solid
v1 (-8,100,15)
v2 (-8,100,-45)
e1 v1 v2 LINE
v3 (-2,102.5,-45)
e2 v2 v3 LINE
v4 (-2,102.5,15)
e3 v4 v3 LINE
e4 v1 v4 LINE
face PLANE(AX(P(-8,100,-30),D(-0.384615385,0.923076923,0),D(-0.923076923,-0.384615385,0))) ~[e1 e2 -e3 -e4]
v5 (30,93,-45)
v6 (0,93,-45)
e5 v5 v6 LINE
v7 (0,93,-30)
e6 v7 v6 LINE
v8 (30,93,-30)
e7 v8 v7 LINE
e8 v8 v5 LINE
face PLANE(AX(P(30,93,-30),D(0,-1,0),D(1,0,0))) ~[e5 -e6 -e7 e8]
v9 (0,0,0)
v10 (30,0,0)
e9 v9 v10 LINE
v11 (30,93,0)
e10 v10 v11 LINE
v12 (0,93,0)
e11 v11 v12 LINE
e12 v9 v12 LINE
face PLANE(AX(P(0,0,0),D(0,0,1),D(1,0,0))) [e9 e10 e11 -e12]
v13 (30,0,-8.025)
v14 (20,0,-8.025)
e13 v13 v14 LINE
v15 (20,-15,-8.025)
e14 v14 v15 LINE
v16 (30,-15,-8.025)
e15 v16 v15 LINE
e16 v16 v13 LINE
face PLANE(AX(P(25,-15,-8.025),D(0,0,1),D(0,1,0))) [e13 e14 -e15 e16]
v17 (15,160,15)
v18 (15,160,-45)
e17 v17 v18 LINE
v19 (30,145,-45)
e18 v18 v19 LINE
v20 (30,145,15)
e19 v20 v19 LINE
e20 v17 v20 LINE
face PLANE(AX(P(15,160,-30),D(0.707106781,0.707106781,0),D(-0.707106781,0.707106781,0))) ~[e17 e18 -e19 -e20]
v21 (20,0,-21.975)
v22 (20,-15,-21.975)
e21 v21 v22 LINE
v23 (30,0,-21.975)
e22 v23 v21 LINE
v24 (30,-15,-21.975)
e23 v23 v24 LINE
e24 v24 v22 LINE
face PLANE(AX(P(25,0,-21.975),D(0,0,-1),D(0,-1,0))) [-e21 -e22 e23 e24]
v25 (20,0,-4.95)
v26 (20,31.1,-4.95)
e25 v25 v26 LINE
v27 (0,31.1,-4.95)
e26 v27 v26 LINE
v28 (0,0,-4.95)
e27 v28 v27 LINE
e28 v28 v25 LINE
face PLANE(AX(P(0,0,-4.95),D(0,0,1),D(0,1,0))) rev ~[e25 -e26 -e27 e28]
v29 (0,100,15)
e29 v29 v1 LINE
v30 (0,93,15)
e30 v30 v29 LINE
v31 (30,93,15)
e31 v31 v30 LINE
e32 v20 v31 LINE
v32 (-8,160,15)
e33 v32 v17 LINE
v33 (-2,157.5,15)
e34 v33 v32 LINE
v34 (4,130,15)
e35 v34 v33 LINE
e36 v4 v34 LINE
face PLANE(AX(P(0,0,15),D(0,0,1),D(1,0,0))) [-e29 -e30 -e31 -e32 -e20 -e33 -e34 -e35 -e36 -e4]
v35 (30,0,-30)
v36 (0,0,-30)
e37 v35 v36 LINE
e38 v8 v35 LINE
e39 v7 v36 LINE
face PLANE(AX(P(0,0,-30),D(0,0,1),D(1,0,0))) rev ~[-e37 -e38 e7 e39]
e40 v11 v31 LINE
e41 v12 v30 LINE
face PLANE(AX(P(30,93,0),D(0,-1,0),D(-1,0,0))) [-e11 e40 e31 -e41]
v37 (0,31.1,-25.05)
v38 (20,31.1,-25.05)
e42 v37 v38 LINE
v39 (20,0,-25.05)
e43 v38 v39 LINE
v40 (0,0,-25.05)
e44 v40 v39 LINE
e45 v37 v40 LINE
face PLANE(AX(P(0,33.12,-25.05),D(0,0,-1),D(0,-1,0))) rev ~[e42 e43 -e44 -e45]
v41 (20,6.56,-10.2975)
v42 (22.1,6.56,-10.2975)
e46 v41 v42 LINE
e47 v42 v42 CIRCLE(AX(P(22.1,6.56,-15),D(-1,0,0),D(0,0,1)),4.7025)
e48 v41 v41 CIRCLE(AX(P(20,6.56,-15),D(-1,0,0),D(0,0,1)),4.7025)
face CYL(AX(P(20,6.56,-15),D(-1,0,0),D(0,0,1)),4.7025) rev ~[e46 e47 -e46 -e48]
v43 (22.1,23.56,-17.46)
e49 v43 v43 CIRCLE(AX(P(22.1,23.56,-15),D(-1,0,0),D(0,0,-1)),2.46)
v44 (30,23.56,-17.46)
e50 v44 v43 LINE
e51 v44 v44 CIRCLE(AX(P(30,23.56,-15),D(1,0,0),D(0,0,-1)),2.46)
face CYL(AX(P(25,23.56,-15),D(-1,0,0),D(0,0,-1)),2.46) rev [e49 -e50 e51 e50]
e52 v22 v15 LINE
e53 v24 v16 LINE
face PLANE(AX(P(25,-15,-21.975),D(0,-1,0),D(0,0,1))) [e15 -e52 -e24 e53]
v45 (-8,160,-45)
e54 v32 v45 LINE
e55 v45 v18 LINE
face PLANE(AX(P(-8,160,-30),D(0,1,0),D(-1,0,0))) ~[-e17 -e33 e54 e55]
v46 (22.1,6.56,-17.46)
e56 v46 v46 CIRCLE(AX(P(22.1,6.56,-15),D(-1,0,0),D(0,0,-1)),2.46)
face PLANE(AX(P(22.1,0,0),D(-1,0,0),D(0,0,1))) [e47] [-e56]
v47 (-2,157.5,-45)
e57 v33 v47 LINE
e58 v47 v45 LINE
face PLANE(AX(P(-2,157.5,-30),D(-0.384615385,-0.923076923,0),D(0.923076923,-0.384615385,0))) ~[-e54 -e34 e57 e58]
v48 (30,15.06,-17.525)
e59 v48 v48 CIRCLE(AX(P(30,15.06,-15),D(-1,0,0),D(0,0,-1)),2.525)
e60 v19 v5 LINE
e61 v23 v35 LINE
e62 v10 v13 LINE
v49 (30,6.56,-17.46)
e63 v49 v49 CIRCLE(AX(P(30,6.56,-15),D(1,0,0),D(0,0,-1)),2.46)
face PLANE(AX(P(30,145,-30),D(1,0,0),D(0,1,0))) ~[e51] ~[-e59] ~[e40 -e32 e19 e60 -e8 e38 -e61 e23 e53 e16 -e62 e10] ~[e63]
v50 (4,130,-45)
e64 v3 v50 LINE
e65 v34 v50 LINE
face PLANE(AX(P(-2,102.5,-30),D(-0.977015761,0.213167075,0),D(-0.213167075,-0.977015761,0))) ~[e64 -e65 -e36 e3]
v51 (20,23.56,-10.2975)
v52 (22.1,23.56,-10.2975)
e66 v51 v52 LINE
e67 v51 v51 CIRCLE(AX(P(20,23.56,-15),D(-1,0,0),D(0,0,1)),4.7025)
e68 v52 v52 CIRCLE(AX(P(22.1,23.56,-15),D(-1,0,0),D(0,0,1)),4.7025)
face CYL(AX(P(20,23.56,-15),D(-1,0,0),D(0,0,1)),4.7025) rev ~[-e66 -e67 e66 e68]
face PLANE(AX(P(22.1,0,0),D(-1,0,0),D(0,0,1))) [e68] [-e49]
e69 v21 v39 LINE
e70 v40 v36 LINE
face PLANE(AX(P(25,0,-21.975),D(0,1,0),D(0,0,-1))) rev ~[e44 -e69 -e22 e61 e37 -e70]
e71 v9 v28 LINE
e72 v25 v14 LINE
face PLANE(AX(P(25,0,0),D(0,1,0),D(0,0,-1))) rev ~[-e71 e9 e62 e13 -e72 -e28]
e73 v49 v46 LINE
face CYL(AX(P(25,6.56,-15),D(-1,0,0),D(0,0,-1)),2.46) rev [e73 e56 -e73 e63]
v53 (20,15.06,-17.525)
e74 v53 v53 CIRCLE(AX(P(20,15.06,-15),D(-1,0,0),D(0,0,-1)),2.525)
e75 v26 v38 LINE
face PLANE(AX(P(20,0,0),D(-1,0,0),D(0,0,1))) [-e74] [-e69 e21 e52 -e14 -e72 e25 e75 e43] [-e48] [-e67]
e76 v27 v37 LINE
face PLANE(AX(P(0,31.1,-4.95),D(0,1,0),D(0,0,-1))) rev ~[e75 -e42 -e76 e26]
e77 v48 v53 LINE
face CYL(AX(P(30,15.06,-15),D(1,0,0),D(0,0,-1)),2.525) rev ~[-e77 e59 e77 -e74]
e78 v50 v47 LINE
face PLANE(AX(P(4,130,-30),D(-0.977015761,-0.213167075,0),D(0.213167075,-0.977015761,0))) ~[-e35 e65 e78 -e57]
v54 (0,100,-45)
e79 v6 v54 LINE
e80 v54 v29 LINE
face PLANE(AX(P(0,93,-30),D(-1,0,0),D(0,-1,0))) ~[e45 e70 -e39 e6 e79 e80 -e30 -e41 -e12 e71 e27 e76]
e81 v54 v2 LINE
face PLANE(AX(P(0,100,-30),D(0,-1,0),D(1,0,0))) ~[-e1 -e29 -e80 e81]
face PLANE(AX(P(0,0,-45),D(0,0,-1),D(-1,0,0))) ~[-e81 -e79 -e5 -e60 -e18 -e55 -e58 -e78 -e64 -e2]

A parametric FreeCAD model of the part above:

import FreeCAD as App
import Part
import Sketcher
Q = App.Units.Quantity

doc = App.newDocument("Part")
body = doc.addObject("PartDesign::Body", "Body")

sketch1 = body.newObject("Sketcher::SketchObject", "Sketch")
sketch1.AttachmentSupport = (doc.getObject("XY_Plane"), [""])
sketch1.MapMode = "FlatFace"
sketch1.addGeometry([
    Part.LineSegment(App.Vector(0, 40, 0), App.Vector(0, 0, 0)),
    Part.LineSegment(App.Vector(0, 0, 0), App.Vector(25, 0, 0)),
    Part.LineSegment(App.Vector(25, 0, 0), App.Vector(25, 40, 0)),
    Part.LineSegment(App.Vector(25, 40, 0), App.Vector(0, 40, 0)),
], False)
sketch1.addConstraint([
    Sketcher.Constraint("Coincident", 0, 2, 1, 1),
    Sketcher.Constraint("Coincident", 1, 2, 2, 1),
    Sketcher.Constraint("Coincident", 2, 2, 3, 1),
    Sketcher.Constraint("Coincident", 3, 2, 0, 1),
    Sketcher.Constraint("Vertical", 0),
    Sketcher.Constraint("Horizontal", 1),
    Sketcher.Constraint("Vertical", 2),
    Sketcher.Constraint("Horizontal", 3),
    Sketcher.Constraint("Coincident", 0, 2, -1, 1),
    Sketcher.Constraint("DistanceX", 1, 1, 1, 2, Q("25 mm")),
    Sketcher.Constraint("DistanceY", 0, 2, 0, 1, Q("40 mm")),
])
pad1 = body.newObject("PartDesign::Pad", "Pad")
pad1.Profile = sketch1
pad1.Length = 30
pad1.Reversed = True

sketch2 = body.newObject("Sketcher::SketchObject", "Sketch001")
sketch2.AttachmentSupport = (doc.getObject("YZ_Plane"), [""])
sketch2.MapMode = "FlatFace"
sketch2.AttachmentOffset = App.Placement(App.Vector(0, 0, 25), App.Rotation())
sketch2.addGeometry(Part.Circle(App.Vector(6.6, -15, 0), App.Vector(0, 0, 1), 2.5), False)
sketch2.addConstraint([
    Sketcher.Constraint("Diameter", 0, Q("4.92 mm")),
    Sketcher.Constraint("DistanceY", 0, 3, -1, 1, Q("15 mm")),
    Sketcher.Constraint("DistanceX", -1, 1, 0, 3, Q("6.56 mm")),
])
pocket1 = body.newObject("PartDesign::Pocket", "Pocket")
pocket1.Profile = sketch2
pocket1.Length = 30

sketch3 = body.newObject("Sketcher::SketchObject", "Sketch002")
sketch3.AttachmentSupport = (doc.getObject("YZ_Plane"), [""])
sketch3.MapMode = "FlatFace"
sketch3.addGeometry([
    Part.LineSegment(App.Vector(0, -25, 0), App.Vector(0, -5, 0)),
    Part.LineSegment(App.Vector(0, -5, 0), App.Vector(33, -5, 0)),
    Part.LineSegment(App.Vector(33, -5, 0), App.Vector(33, -25, 0)),
    Part.LineSegment(App.Vector(33, -25, 0), App.Vector(0, -25, 0)),
], False)
sketch3.addConstraint([
    Sketcher.Constraint("Coincident", 0, 2, 1, 1),
    Sketcher.Constraint("Coincident", 1, 2, 2, 1),
    Sketcher.Constraint("Coincident", 2, 2, 3, 1),
    Sketcher.Constraint("Coincident", 3, 2, 0, 1),
    Sketcher.Constraint("Vertical", 0),
    Sketcher.Constraint("Horizontal", 1),
    Sketcher.Constraint("Vertical", 2),
    Sketcher.Constraint("Horizontal", 3),
    Sketcher.Constraint("PointOnObject", 0, 2, -2),
    Sketcher.Constraint("DistanceY", 0, 1, 0, 2, Q("20.1 mm")),
    Sketcher.Constraint("DistanceX", 1, 1, 1, 2, Q("33.12 mm")),
    Sketcher.Constraint("DistanceY", 0, 2, -1, 1, Q("4.95 mm")),
])
pocket2 = body.newObject("PartDesign::Pocket", "Pocket001")
pocket2.Profile = sketch3
pocket2.Length = 20
pocket2.Reversed = True

sketch4 = body.newObject("Sketcher::SketchObject", "Sketch003")
sketch4.AttachmentSupport = (doc.getObject("XZ_Plane"), [""])
sketch4.MapMode = "FlatFace"
sketch4.addGeometry([
    Part.LineSegment(App.Vector(25, -8, 0), App.Vector(20, -8, 0)),
    Part.LineSegment(App.Vector(20, -8, 0), App.Vector(20, -22, 0)),
    Part.LineSegment(App.Vector(20, -22, 0), App.Vector(25, -22, 0)),
    Part.LineSegment(App.Vector(25, -22, 0), App.Vector(25, -8, 0)),
], False)
sketch4.addConstraint([
    Sketcher.Constraint("Coincident", 0, 2, 1, 1),
    Sketcher.Constraint("Coincident", 1, 2, 2, 1),
    Sketcher.Constraint("Coincident", 2, 2, 3, 1),
    Sketcher.Constraint("Coincident", 3, 2, 0, 1),
    Sketcher.Constraint("Horizontal", 0),
    Sketcher.Constraint("Vertical", 1),
    Sketcher.Constraint("Horizontal", 2),
    Sketcher.Constraint("Vertical", 3),
    Sketcher.Constraint("DistanceY", 1, 2, 1, 1, Q("13.95 mm")),
    Sketcher.Constraint("DistanceX", 0, 2, 0, 1, Q("5 mm")),
    Sketcher.Constraint("DistanceX", -1, 1, 0, 2, Q("20 mm")),
    Sketcher.Constraint("DistanceY", 0, 2, -1, 1, Q("8.025 mm")),
])
pad2 = body.newObject("PartDesign::Pad", "Pad001")
pad2.Profile = sketch4
pad2.Length = 15

sketch5 = body.newObject("Sketcher::SketchObject", "Sketch004")
sketch5.AttachmentSupport = (doc.getObject("YZ_Plane"), [""])
sketch5.MapMode = "FlatFace"
sketch5.AttachmentOffset = App.Placement(App.Vector(0, 0, 20), App.Rotation())
sketch5.addGeometry([
    Part.Circle(App.Vector(6.6, -15, 0), App.Vector(0, 0, 1), 4.7),
    Part.Circle(App.Vector(6.6, -15, 0), App.Vector(0, 0, 1), 2.5),
], False)
sketch5.addConstraint([
    Sketcher.Constraint("Coincident", 1, 3, 0, 3),
    Sketcher.Constraint("Diameter", 0, Q("9.405 mm")),
    Sketcher.Constraint("Diameter", 1, Q("4.92 mm")),
    Sketcher.Constraint("DistanceY", 0, 3, -1, 1, Q("15 mm")),
    Sketcher.Constraint("DistanceX", -1, 1, 0, 3, Q("6.56 mm")),
])
pocket3 = body.newObject("PartDesign::Pocket", "Pocket002")
pocket3.Profile = sketch5
pocket3.Length = 2.1
pocket3.Reversed = True

sketch6 = body.newObject("Sketcher::SketchObject", "Sketch005")
sketch6.AttachmentSupport = (doc.getObject("YZ_Plane"), [""])
sketch6.MapMode = "FlatFace"
sketch6.AttachmentOffset = App.Placement(App.Vector(0, 0, 25), App.Rotation())
sketch6.addGeometry(Part.Circle(App.Vector(23.6, -15, 0), App.Vector(0, 0, 1), 2.5), False)
sketch6.addConstraint([
    Sketcher.Constraint("Diameter", 0, Q("4.92 mm")),
    Sketcher.Constraint("DistanceY", 0, 3, -1, 1, Q("15 mm")),
    Sketcher.Constraint("DistanceX", -1, 1, 0, 3, Q("23.56 mm")),
])
pocket4 = body.newObject("PartDesign::Pocket", "Pocket003")
pocket4.Profile = sketch6
pocket4.Length = 10

sketch7 = body.newObject("Sketcher::SketchObject", "Sketch006")
sketch7.AttachmentSupport = (doc.getObject("YZ_Plane"), [""])
sketch7.MapMode = "FlatFace"
sketch7.AttachmentOffset = App.Placement(App.Vector(0, 0, 20), App.Rotation())
sketch7.addGeometry([
    Part.Circle(App.Vector(23.6, -15, 0), App.Vector(0, 0, 1), 4.7),
    Part.Circle(App.Vector(23.6, -15, 0), App.Vector(0, 0, 1), 2.5),
], False)
sketch7.addConstraint([
    Sketcher.Constraint("Coincident", 1, 3, 0, 3),
    Sketcher.Constraint("Diameter", 0, Q("9.405 mm")),
    Sketcher.Constraint("Diameter", 1, Q("4.92 mm")),
    Sketcher.Constraint("DistanceY", 0, 3, -1, 1, Q("15 mm")),
    Sketcher.Constraint("DistanceX", -1, 1, 0, 3, Q("23.56 mm")),
])
pocket5 = body.newObject("PartDesign::Pocket", "Pocket004")
pocket5.Profile = sketch7
pocket5.Length = 2.1
pocket5.Reversed = True

sketch8 = body.newObject("Sketcher::SketchObject", "Sketch007")
sketch8.AttachmentSupport = (doc.getObject("YZ_Plane"), [""])
sketch8.MapMode = "FlatFace"
sketch8.AttachmentOffset = App.Placement(App.Vector(0, 0, 25), App.Rotation())
sketch8.addGeometry([
    Part.LineSegment(App.Vector(0, -30, 0), App.Vector(40, -30, 0)),
    Part.LineSegment(App.Vector(40, -30, 0), App.Vector(40, 0, 0)),
    Part.LineSegment(App.Vector(40, 0, 0), App.Vector(0, 0, 0)),
    Part.LineSegment(App.Vector(0, 0, 0), App.Vector(0, -8, 0)),
    Part.LineSegment(App.Vector(0, -8, 0), App.Vector(-15, -8, 0)),
    Part.LineSegment(App.Vector(-15, -8, 0), App.Vector(-15, -22, 0)),
    Part.LineSegment(App.Vector(-15, -22, 0), App.Vector(0, -22, 0)),
    Part.LineSegment(App.Vector(0, -22, 0), App.Vector(0, -30, 0)),
    Part.Circle(App.Vector(6.6, -15, 0), App.Vector(0, 0, 1), 2.5),
    Part.Circle(App.Vector(23.6, -15, 0), App.Vector(0, 0, 1), 2.5),
], False)
sketch8.addConstraint([
    Sketcher.Constraint("Coincident", 0, 2, 1, 1),
    Sketcher.Constraint("Coincident", 1, 2, 2, 1),
    Sketcher.Constraint("Coincident", 2, 2, 3, 1),
    Sketcher.Constraint("Coincident", 3, 2, 4, 1),
    Sketcher.Constraint("Coincident", 4, 2, 5, 1),
    Sketcher.Constraint("Coincident", 5, 2, 6, 1),
    Sketcher.Constraint("Coincident", 6, 2, 7, 1),
    Sketcher.Constraint("Coincident", 7, 2, 0, 1),
    Sketcher.Constraint("Horizontal", 0),
    Sketcher.Constraint("Vertical", 1),
    Sketcher.Constraint("Horizontal", 2),
    Sketcher.Constraint("Vertical", 3),
    Sketcher.Constraint("Horizontal", 4),
    Sketcher.Constraint("Vertical", 5),
    Sketcher.Constraint("Horizontal", 6),
    Sketcher.Constraint("Vertical", 7),
    Sketcher.Constraint("Coincident", 2, 2, -1, 1),
    Sketcher.Constraint("Equal", 8, 9),
    Sketcher.Constraint("PointOnObject", 6, 2, -2),
    Sketcher.Constraint("Horizontal", 8, 3, 9, 3),
    Sketcher.Constraint("Equal", 3, 7),
    Sketcher.Constraint("Diameter", 8, Q("4.92 mm")),
    Sketcher.Constraint("DistanceX", 0, 1, 0, 2, Q("40 mm")),
    Sketcher.Constraint("DistanceX", 4, 2, 4, 1, Q("15 mm")),
    Sketcher.Constraint("DistanceY", 1, 1, 1, 2, Q("30 mm")),
    Sketcher.Constraint("DistanceY", 8, 3, -1, 1, Q("15 mm")),
    Sketcher.Constraint("DistanceX", 8, 3, 9, 3, Q("17 mm")),
    Sketcher.Constraint("DistanceY", 5, 2, 5, 1, Q("13.95 mm")),
    Sketcher.Constraint("DistanceX", -1, 1, 8, 3, Q("6.56 mm")),
])
pad3 = body.newObject("PartDesign::Pad", "Pad002")
pad3.Profile = sketch8
pad3.Length = 5

sketch9 = body.newObject("Sketcher::SketchObject", "Sketch008")
sketch9.AttachmentSupport = (doc.getObject("XZ_Plane"), [""])
sketch9.MapMode = "FlatFace"
sketch9.AttachmentOffset = App.Placement(App.Vector(0, 0, -40), App.Rotation())
sketch9.addGeometry([
    Part.LineSegment(App.Vector(30, -30, 0), App.Vector(0, -30, 0)),
    Part.LineSegment(App.Vector(0, -30, 0), App.Vector(0, 0, 0)),
    Part.LineSegment(App.Vector(0, 0, 0), App.Vector(30, 0, 0)),
    Part.LineSegment(App.Vector(30, 0, 0), App.Vector(30, -30, 0)),
], False)
sketch9.addConstraint([
    Sketcher.Constraint("Coincident", 0, 2, 1, 1),
    Sketcher.Constraint("Coincident", 1, 2, 2, 1),
    Sketcher.Constraint("Coincident", 2, 2, 3, 1),
    Sketcher.Constraint("Coincident", 3, 2, 0, 1),
    Sketcher.Constraint("Horizontal", 0),
    Sketcher.Constraint("Vertical", 1),
    Sketcher.Constraint("Horizontal", 2),
    Sketcher.Constraint("Vertical", 3),
    Sketcher.Constraint("Coincident", 1, 2, -1, 1),
    Sketcher.Constraint("Equal", 2, 1),
    Sketcher.Constraint("DistanceX", 0, 2, 0, 1, Q("30 mm")),
])
pad4 = body.newObject("PartDesign::Pad", "Pad003")
pad4.Profile = sketch9
pad4.Length = 30
pad4.Reversed = True

sketch10 = body.newObject("Sketcher::SketchObject", "Sketch009")
sketch10.AttachmentSupport = (doc.getObject("YZ_Plane"), [""])
sketch10.MapMode = "FlatFace"
sketch10.AttachmentOffset = App.Placement(App.Vector(0, 0, 30), App.Rotation())
sketch10.addGeometry(Part.Circle(App.Vector(15.1, -15, 0), App.Vector(0, 0, 1), 2.5), False)
sketch10.addConstraint([
    Sketcher.Constraint("Diameter", 0, Q("5.05 mm")),
    Sketcher.Constraint("DistanceY", 0, 3, -1, 1, Q("15 mm")),
    Sketcher.Constraint("DistanceX", -1, 1, 0, 3, Q("15.06 mm")),
])
pocket6 = body.newObject("PartDesign::Pocket", "Pocket005")
pocket6.Profile = sketch10
pocket6.Length = 30

sketch11 = body.newObject("Sketcher::SketchObject", "Sketch010")
sketch11.AttachmentSupport = (doc.getObject("XY_Plane"), [""])
sketch11.MapMode = "FlatFace"
sketch11.addGeometry([
    Part.LineSegment(App.Vector(0, 70, 0), App.Vector(30, 70, 0)),
    Part.LineSegment(App.Vector(30, 70, 0), App.Vector(30, 145, 0)),
    Part.LineSegment(App.Vector(30, 145, 0), App.Vector(15, 160, 0)),
    Part.LineSegment(App.Vector(15, 160, 0), App.Vector(-8, 160, 0)),
    Part.LineSegment(App.Vector(-8, 160, 0), App.Vector(-2, 158, 0)),
    Part.LineSegment(App.Vector(-2, 158, 0), App.Vector(4, 130, 0)),
    Part.LineSegment(App.Vector(4, 130, 0), App.Vector(-2, 102, 0)),
    Part.LineSegment(App.Vector(-2, 102, 0), App.Vector(-8, 100, 0)),
    Part.LineSegment(App.Vector(-8, 100, 0), App.Vector(0, 100, 0)),
    Part.LineSegment(App.Vector(0, 100, 0), App.Vector(0, 70, 0)),
], False)
sketch11.addConstraint([
    Sketcher.Constraint("Coincident", 0, 2, 1, 1),
    Sketcher.Constraint("Coincident", 1, 2, 2, 1),
    Sketcher.Constraint("Coincident", 2, 2, 3, 1),
    Sketcher.Constraint("Coincident", 3, 2, 4, 1),
    Sketcher.Constraint("Coincident", 4, 2, 5, 1),
    Sketcher.Constraint("Coincident", 5, 2, 6, 1),
    Sketcher.Constraint("Coincident", 6, 2, 7, 1),
    Sketcher.Constraint("Coincident", 7, 2, 8, 1),
    Sketcher.Constraint("Coincident", 8, 2, 9, 1),
    Sketcher.Constraint("Coincident", 9, 2, 0, 1),
    Sketcher.Constraint("Horizontal", 0),
    Sketcher.Constraint("Vertical", 1),
    Sketcher.Constraint("Horizontal", 3),
    Sketcher.Constraint("Horizontal", 8),
    Sketcher.Constraint("Vertical", 9),
    Sketcher.Constraint("PointOnObject", 8, 2, -2),
    Sketcher.Constraint("Vertical", 4, 2, 6, 2),
    Sketcher.Constraint("Vertical", 3, 2, 7, 2),
    Sketcher.Constraint("Equal", 0, 9),
    Sketcher.Constraint("Equal", 5, 6),
    Sketcher.Constraint("Equal", 4, 7),
    Sketcher.Constraint("DistanceX", 0, 1, 0, 2, Q("30 mm")),
    Sketcher.Constraint("DistanceY", 5, 2, 2, 2, Q("30 mm")),
    Sketcher.Constraint("DistanceX", 3, 2, 3, 1, Q("23 mm")),
    Sketcher.Constraint("DistanceX", 8, 1, 8, 2, Q("8 mm")),
    Sketcher.Constraint("DistanceY", 1, 1, 1, 2, Q("75 mm")),
    Sketcher.Constraint("DistanceY", -1, 1, 0, 2, Q("70 mm")),
    Sketcher.Constraint("DistanceX", 4, 2, -1, 1, Q("2 mm")),
    Sketcher.Constraint("DistanceX", -1, 1, 5, 2, Q("4 mm")),
    Sketcher.Constraint("DistanceY", 6, 2, 4, 2, Q("55 mm")),
])
pad5 = body.newObject("PartDesign::Pad", "Pad004")
pad5.Profile = sketch11
pad5.Length = 30
pad5.Reversed = True

sketch12 = body.newObject("Sketcher::SketchObject", "Sketch011")
sketch12.AttachmentSupport = (doc.getObject("YZ_Plane"), [""])
sketch12.MapMode = "FlatFace"
sketch12.addGeometry([
    Part.LineSegment(App.Vector(33.1, -5, 0), App.Vector(33.1, -25.1, 0)),
    Part.LineSegment(App.Vector(33.1, -25.1, 0), App.Vector(31.1, -25.1, 0)),
    Part.LineSegment(App.Vector(31.1, -25.1, 0), App.Vector(31.1, -5, 0)),
    Part.LineSegment(App.Vector(31.1, -5, 0), App.Vector(33.1, -5, 0)),
], False)
sketch12.addConstraint([
    Sketcher.Constraint("Coincident", 0, 2, 1, 1),
    Sketcher.Constraint("Coincident", 1, 2, 2, 1),
    Sketcher.Constraint("Coincident", 2, 2, 3, 1),
    Sketcher.Constraint("Coincident", 3, 2, 0, 1),
    Sketcher.Constraint("Vertical", 0),
    Sketcher.Constraint("Horizontal", 1),
    Sketcher.Constraint("Vertical", 2),
    Sketcher.Constraint("Horizontal", 3),
    Sketcher.Constraint("DistanceX", 1, 2, 1, 1, Q("2.02 mm")),
    Sketcher.Constraint("DistanceY", 0, 2, 0, 1, Q("20.1 mm")),
    Sketcher.Constraint("DistanceX", -1, 1, 1, 2, Q("31.1 mm")),
    Sketcher.Constraint("DistanceY", 0, 2, -1, 1, Q("25.05 mm")),
])
pad6 = body.newObject("PartDesign::Pad", "Pad005")
pad6.Profile = sketch12
pad6.Length = 20

sketch13 = body.newObject("Sketcher::SketchObject", "Sketch012")
sketch13.AttachmentSupport = (doc.getObject("XY_Plane"), [""])
sketch13.MapMode = "FlatFace"
sketch13.addGeometry([
    Part.LineSegment(App.Vector(-8, 100, 0), App.Vector(0, 100, 0)),
    Part.LineSegment(App.Vector(0, 100, 0), App.Vector(0, 93, 0)),
    Part.LineSegment(App.Vector(0, 93, 0), App.Vector(30, 93, 0)),
    Part.LineSegment(App.Vector(30, 93, 0), App.Vector(30, 145, 0)),
    Part.LineSegment(App.Vector(30, 145, 0), App.Vector(15, 160, 0)),
    Part.LineSegment(App.Vector(15, 160, 0), App.Vector(-8, 160, 0)),
    Part.LineSegment(App.Vector(-8, 160, 0), App.Vector(-2, 158, 0)),
    Part.LineSegment(App.Vector(-2, 158, 0), App.Vector(4, 130, 0)),
    Part.LineSegment(App.Vector(4, 130, 0), App.Vector(-2, 102, 0)),
    Part.LineSegment(App.Vector(-2, 102, 0), App.Vector(-8, 100, 0)),
], False)
sketch13.addConstraint([
    Sketcher.Constraint("Coincident", 0, 2, 1, 1),
    Sketcher.Constraint("Coincident", 1, 2, 2, 1),
    Sketcher.Constraint("Coincident", 2, 2, 3, 1),
    Sketcher.Constraint("Coincident", 3, 2, 4, 1),
    Sketcher.Constraint("Coincident", 4, 2, 5, 1),
    Sketcher.Constraint("Coincident", 5, 2, 6, 1),
    Sketcher.Constraint("Coincident", 6, 2, 7, 1),
    Sketcher.Constraint("Coincident", 7, 2, 8, 1),
    Sketcher.Constraint("Coincident", 8, 2, 9, 1),
    Sketcher.Constraint("Coincident", 9, 2, 0, 1),
    Sketcher.Constraint("Horizontal", 0),
    Sketcher.Constraint("Vertical", 1),
    Sketcher.Constraint("Horizontal", 2),
    Sketcher.Constraint("Vertical", 3),
    Sketcher.Constraint("Horizontal", 5),
    Sketcher.Constraint("PointOnObject", 0, 2, -2),
    Sketcher.Constraint("Vertical", 6, 2, 8, 2),
    Sketcher.Constraint("Vertical", 5, 2, 9, 2),
    Sketcher.Constraint("Equal", 7, 8),
    Sketcher.Constraint("Equal", 6, 9),
    Sketcher.Constraint("DistanceY", 3, 1, 3, 2, Q("52 mm")),
    Sketcher.Constraint("DistanceX", 0, 1, 0, 2, Q("8 mm")),
    Sketcher.Constraint("DistanceX", 2, 1, 2, 2, Q("30 mm")),
    Sketcher.Constraint("DistanceX", 5, 2, 5, 1, Q("23 mm")),
    Sketcher.Constraint("DistanceY", 1, 2, 1, 1, Q("7 mm")),
    Sketcher.Constraint("Angle", 4, Q("135 deg")),
    Sketcher.Constraint("DistanceY", -1, 1, 0, 2, Q("100 mm")),
    Sketcher.Constraint("DistanceX", 6, 2, -1, 1, Q("2 mm")),
    Sketcher.Constraint("DistanceX", -1, 1, 7, 2, Q("4 mm")),
    Sketcher.Constraint("Distance", 6, Q("6.5 mm")),
])
pad7 = body.newObject("PartDesign::Pad", "Pad006")
pad7.Profile = sketch13
pad7.Length = 15
doc.recompute()

datumplane = body.newObject("PartDesign::Plane", "DatumPlane")
datumplane.AttachmentSupport = (doc.getObject("XY_Plane"), [""])
datumplane.MapMode = "FlatFace"
datumplane.AttachmentOffset = App.Placement(App.Vector(0, 0, -15), App.Rotation())
mirrored = body.newObject("PartDesign::Mirrored", "Mirrored")
mirrored.Originals = [pad7]
mirrored.MirrorPlane = (datumplane, [""])
body.Tip = mirrored

doc.recompute()
